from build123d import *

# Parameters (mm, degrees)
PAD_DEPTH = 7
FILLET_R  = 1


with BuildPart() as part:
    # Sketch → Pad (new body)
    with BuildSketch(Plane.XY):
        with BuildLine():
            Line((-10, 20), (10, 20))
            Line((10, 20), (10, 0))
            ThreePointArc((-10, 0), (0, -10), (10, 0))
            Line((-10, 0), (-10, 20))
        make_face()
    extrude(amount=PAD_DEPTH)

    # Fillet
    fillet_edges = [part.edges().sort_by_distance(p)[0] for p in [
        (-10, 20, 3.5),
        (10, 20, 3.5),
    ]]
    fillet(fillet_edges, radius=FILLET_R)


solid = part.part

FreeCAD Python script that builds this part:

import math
import FreeCAD as App
import Part
import Sketcher
from FreeCAD import Vector
Q = App.Units.Quantity


def edges_at(feature, points):
    """Names of the edges that pass closest to the given points."""
    edges = feature.Shape.Edges
    near = lambda p: min(range(len(edges)), key=lambda i: edges[i].distToShape(Part.Vertex(*p))[0])
    return sorted({f"Edge{near(p) + 1}" for p in points})

doc = App.newDocument("Part")
body = doc.addObject("PartDesign::Body", "Body")

sketch1 = doc.addObject("Sketcher::SketchObject", "Sketch")
body.addObject(sketch1)
sketch1.AttachmentSupport = (doc.XY_Plane, [""])
sketch1.MapMode = "FlatFace"
sketch1.addGeometry([
    Part.LineSegment(Vector(10, 20, 0), Vector(-10, 20, 0)),
    Part.LineSegment(Vector(-10, 20, 0), Vector(-10, 0, 0)),
    Part.ArcOfCircle(Part.Circle(Vector(0, 0, 0), Vector(0, 0, 1), 10), math.radians(180), math.radians(360)),
    Part.LineSegment(Vector(10, 0, 0), Vector(10, 20, 0)),
], False)
sketch1.addConstraint([
    Sketcher.Constraint("Coincident", 0, 2, 1, 1),
    Sketcher.Constraint("Tangent", 1, 2, 2, 1),
    Sketcher.Constraint("Tangent", 2, 2, 3, 1),
    Sketcher.Constraint("Coincident", 3, 2, 0, 1),
    Sketcher.Constraint("Horizontal", 0),
    Sketcher.Constraint("Vertical", 1),
    Sketcher.Constraint("Vertical", 3),
    Sketcher.Constraint("Coincident", 2, 3, -1, 1),
    Sketcher.Constraint("Equal", 0, 1),
    Sketcher.Constraint("Radius", 2, Q("10 mm")),
])
pad1 = doc.addObject("PartDesign::Pad", "Pad")
body.addObject(pad1)
pad1.Profile = sketch1
pad1.Length = 7
doc.recompute()

fillet = doc.addObject("PartDesign::Fillet", "Fillet")
body.addObject(fillet)
fillet.Base = (pad1, edges_at(pad1, [(-10, 20, 3.5), (10, 20, 3.5)]))
fillet.Radius = 1

doc.recompute()
